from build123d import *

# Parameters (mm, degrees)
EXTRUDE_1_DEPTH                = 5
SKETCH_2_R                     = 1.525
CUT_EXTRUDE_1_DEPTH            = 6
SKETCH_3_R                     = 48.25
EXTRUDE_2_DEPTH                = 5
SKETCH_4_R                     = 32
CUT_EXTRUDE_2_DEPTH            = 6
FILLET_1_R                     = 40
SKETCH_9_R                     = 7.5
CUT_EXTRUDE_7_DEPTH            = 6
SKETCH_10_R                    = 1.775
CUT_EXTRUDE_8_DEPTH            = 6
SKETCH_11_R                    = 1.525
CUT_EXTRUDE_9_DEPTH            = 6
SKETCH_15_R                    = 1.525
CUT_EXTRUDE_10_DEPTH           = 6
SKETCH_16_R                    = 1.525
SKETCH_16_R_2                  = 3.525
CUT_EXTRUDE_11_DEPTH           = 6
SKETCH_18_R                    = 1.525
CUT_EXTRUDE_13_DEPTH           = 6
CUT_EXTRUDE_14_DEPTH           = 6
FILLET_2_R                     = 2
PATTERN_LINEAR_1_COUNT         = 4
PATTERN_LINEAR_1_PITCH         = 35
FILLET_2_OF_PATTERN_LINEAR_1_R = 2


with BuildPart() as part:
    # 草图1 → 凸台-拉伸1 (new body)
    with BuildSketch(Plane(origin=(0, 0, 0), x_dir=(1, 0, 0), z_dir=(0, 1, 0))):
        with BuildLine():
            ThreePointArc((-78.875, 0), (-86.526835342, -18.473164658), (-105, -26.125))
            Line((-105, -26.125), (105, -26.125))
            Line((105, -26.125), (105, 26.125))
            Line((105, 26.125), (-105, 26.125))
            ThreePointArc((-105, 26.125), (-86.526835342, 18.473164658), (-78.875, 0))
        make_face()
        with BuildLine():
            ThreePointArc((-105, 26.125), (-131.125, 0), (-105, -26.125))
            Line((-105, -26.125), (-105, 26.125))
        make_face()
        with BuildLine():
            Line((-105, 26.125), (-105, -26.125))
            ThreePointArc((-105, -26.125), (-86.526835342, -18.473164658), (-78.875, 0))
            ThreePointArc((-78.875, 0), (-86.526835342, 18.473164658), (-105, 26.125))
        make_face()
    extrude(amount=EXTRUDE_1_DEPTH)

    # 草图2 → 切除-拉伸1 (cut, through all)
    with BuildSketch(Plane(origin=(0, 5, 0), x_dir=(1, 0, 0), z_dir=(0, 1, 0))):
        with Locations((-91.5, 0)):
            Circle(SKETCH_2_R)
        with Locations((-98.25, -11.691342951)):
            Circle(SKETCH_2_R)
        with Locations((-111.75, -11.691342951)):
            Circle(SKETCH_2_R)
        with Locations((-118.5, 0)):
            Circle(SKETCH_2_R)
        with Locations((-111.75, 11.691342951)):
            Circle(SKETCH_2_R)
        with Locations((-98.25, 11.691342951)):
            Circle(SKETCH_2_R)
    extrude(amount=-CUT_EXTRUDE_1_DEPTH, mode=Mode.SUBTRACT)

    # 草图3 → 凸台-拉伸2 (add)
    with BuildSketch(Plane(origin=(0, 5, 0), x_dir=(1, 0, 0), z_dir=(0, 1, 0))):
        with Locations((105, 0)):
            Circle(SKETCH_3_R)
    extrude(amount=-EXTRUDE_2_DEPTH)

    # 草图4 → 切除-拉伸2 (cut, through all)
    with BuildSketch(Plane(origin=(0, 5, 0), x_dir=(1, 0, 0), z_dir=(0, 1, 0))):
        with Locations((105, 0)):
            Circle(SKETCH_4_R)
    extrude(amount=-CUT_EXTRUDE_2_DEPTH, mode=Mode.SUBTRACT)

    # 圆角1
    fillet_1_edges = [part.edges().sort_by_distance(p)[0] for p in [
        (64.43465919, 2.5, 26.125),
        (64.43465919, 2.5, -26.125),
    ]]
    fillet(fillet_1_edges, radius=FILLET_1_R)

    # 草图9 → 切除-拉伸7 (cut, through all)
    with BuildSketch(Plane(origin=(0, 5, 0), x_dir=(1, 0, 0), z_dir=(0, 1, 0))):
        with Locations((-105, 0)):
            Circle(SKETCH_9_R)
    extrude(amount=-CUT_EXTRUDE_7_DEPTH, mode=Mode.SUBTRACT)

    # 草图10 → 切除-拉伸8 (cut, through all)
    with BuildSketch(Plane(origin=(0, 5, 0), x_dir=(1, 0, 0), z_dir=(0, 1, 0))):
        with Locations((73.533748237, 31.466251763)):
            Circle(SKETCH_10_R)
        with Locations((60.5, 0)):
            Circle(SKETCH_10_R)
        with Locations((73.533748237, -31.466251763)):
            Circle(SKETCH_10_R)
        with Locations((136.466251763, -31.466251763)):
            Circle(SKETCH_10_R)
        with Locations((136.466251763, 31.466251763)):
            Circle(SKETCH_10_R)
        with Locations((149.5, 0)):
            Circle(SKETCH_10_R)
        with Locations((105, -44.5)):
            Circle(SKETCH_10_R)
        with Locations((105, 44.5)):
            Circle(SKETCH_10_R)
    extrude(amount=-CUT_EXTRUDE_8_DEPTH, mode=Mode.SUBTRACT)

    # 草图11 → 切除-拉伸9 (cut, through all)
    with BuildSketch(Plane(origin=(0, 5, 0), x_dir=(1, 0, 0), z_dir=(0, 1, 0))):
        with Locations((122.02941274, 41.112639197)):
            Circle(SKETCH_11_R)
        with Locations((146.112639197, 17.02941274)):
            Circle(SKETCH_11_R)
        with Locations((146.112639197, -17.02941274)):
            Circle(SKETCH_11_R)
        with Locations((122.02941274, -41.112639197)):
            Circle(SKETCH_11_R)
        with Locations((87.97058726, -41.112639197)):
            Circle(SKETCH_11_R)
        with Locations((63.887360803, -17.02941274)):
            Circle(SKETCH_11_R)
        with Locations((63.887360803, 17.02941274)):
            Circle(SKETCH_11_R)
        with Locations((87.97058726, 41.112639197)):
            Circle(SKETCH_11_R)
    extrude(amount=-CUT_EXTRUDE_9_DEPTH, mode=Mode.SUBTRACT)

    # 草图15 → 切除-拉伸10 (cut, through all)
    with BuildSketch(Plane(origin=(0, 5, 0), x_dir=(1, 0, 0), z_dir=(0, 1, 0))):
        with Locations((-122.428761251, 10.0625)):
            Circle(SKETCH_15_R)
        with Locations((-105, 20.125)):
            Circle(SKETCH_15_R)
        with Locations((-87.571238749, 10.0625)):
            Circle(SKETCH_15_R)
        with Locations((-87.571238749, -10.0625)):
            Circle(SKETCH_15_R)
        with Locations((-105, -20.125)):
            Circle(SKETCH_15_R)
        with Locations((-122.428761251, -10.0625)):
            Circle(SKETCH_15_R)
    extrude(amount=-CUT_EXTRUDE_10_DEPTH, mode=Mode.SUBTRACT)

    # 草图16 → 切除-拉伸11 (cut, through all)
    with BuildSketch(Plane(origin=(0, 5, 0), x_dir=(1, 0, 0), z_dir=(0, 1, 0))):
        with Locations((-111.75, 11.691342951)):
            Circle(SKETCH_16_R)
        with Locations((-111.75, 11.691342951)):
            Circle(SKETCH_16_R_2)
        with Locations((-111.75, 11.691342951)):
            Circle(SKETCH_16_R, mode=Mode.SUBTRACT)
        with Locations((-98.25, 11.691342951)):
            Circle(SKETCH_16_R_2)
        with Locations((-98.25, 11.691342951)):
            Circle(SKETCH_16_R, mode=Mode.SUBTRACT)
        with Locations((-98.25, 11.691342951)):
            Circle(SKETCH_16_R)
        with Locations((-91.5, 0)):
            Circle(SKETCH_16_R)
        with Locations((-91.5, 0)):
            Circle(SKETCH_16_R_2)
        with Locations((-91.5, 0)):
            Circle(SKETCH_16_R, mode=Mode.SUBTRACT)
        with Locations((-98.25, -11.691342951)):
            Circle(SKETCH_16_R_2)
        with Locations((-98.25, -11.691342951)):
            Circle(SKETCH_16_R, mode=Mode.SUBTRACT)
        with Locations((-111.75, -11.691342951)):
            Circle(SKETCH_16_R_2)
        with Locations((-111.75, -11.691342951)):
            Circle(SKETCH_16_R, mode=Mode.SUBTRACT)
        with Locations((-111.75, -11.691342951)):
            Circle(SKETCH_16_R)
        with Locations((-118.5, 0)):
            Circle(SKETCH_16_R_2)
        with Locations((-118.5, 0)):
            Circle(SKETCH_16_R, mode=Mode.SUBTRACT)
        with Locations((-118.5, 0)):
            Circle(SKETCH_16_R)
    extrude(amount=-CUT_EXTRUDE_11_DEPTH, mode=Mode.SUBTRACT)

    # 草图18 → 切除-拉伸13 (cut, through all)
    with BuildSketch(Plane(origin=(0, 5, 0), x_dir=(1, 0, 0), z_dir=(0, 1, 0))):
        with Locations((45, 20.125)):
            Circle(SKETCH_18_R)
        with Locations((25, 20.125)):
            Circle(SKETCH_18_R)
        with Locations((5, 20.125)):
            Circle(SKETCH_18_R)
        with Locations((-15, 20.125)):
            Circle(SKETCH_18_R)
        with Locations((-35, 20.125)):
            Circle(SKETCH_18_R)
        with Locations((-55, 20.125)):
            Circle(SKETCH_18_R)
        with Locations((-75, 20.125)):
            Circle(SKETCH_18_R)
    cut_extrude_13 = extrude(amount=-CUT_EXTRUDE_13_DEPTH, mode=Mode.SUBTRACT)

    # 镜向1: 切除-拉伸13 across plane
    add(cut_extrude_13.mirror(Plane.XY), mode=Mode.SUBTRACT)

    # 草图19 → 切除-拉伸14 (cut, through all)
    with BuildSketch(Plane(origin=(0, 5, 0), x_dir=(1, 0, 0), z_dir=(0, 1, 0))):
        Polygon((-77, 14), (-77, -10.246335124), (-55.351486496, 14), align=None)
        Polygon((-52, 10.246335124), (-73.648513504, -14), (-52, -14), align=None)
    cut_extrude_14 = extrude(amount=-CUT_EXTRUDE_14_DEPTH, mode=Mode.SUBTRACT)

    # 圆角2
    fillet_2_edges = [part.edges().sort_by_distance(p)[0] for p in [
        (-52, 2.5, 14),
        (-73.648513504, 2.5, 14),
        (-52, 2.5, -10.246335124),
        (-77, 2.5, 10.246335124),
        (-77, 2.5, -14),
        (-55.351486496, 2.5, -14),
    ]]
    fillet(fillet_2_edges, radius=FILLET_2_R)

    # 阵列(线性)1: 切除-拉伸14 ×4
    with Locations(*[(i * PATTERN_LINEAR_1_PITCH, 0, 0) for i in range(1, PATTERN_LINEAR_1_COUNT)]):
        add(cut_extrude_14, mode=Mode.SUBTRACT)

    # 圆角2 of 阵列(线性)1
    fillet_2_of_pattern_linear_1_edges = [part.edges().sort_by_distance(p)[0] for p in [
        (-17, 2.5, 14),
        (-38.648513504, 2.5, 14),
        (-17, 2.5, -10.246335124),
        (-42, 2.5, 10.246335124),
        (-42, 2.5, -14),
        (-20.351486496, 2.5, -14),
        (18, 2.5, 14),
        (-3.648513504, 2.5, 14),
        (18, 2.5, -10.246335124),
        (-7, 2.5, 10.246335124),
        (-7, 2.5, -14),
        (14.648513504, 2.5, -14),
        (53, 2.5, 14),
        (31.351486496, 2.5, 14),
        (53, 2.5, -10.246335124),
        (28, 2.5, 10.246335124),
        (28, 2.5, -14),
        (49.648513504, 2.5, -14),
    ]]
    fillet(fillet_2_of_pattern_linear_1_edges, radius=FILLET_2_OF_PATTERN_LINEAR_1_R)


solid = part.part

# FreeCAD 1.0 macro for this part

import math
import FreeCAD as App
import Part
import Sketcher
Q = App.Units.Quantity


def edges_at(feature, points):
    """Names of the edges that pass closest to the given points."""
    edges = feature.Shape.Edges
    near = lambda p: min(range(len(edges)), key=lambda i: edges[i].distToShape(Part.Vertex(*p))[0])
    return sorted({f"Edge{near(p) + 1}" for p in points})

doc = App.newDocument("Part")
body = doc.addObject("PartDesign::Body", "Body")

sketch1 = body.newObject("Sketcher::SketchObject", "Sketch")
sketch1.AttachmentSupport = (doc.getObject("XZ_Plane"), [""])
sketch1.MapMode = "FlatFace"
sketch1.addGeometry([
    Part.LineSegment(App.Vector(105, 26, 0), App.Vector(105, -26, 0)),
    Part.LineSegment(App.Vector(105, -26, 0), App.Vector(-105, -26, 0)),
    Part.ArcOfCircle(Part.Circle(App.Vector(-105, 0, 0), App.Vector(0, 0, 1), 26), math.radians(90), math.radians(270)),
    Part.LineSegment(App.Vector(-105, 26, 0), App.Vector(105, 26, 0)),
], False)
sketch1.addConstraint([
    Sketcher.Constraint("Coincident", 0, 2, 1, 1),
    Sketcher.Constraint("Tangent", 1, 2, 2, 2),
    Sketcher.Constraint("Tangent", 2, 1, 3, 1),
    Sketcher.Constraint("Coincident", 3, 2, 0, 1),
    Sketcher.Constraint("Vertical", 0),
    Sketcher.Constraint("Horizontal", 1),
    Sketcher.Constraint("Horizontal", 3),
    Sketcher.Constraint("Symmetric", 0, 2, 2, 1, -1, 1),
    Sketcher.Constraint("DistanceX", 1, 2, 1, 1, Q("210 mm")),
    Sketcher.Constraint("Radius", 2, Q("26.125 mm")),
])
pad1 = body.newObject("PartDesign::Pad", "Pad")
pad1.Profile = sketch1
pad1.Length = 5
pad1.Reversed = True

sketch2 = body.newObject("Sketcher::SketchObject", "Sketch001")
sketch2.AttachmentSupport = (doc.getObject("XZ_Plane"), [""])
sketch2.MapMode = "FlatFace"
sketch2.AttachmentOffset = App.Placement(App.Vector(0, 0, -5), App.Rotation())
sketch2.addGeometry([
    Part.Circle(App.Vector(-91.5, 0, 0), App.Vector(0, 0, 1), 1.5),
    Part.Circle(App.Vector(-98.2, 11.7, 0), App.Vector(0, 0, 1), 1.5),
    Part.Circle(App.Vector(-111.8, 11.7, 0), App.Vector(0, 0, 1), 1.5),
    Part.Circle(App.Vector(-118.5, 0, 0), App.Vector(0, 0, 1), 1.5),
    Part.Circle(App.Vector(-111.8, -11.7, 0), App.Vector(0, 0, 1), 1.5),
    Part.Circle(App.Vector(-98.2, -11.7, 0), App.Vector(0, 0, 1), 1.5),
], False)
sketch2.addConstraint([
    Sketcher.Constraint("Equal", 0, 1),
    Sketcher.Constraint("Equal", 1, 2),
    Sketcher.Constraint("Equal", 2, 3),
    Sketcher.Constraint("Equal", 3, 4),
    Sketcher.Constraint("Equal", 4, 5),
    Sketcher.Constraint("Symmetric", 2, 3, 4, 3, -1),
    Sketcher.Constraint("Symmetric", 1, 3, 5, 3, -1),
    Sketcher.Constraint("PointOnObject", 0, 3, -1),
    Sketcher.Constraint("PointOnObject", 3, 3, -1),
    Sketcher.Constraint("Horizontal", 1, 3, 2, 3),
    Sketcher.Constraint("Diameter", 0, Q("3.05 mm")),
    Sketcher.Constraint("DistanceX", 3, 3, 0, 3, Q("27 mm")),
    Sketcher.Constraint("DistanceX", 0, 3, -1, 1, Q("91.5 mm")),
    Sketcher.Constraint("DistanceX", 2, 3, 1, 3, Q("13.5 mm")),
    Sketcher.Constraint("DistanceX", 1, 3, -1, 1, Q("98.25 mm")),
    Sketcher.Constraint("DistanceY", -1, 1, 1, 3, Q("11.691343 mm")),
])
pocket1 = body.newObject("PartDesign::Pocket", "Pocket")
pocket1.Profile = sketch2
pocket1.Type = "ThroughAll"
pocket1.Reversed = True

sketch3 = body.newObject("Sketcher::SketchObject", "Sketch002")
sketch3.AttachmentSupport = (doc.getObject("XZ_Plane"), [""])
sketch3.MapMode = "FlatFace"
sketch3.AttachmentOffset = App.Placement(App.Vector(0, 0, -5), App.Rotation())
sketch3.addGeometry(Part.Circle(App.Vector(105, 0, 0), App.Vector(0, 0, 1), 48), False)
sketch3.addConstraint([
    Sketcher.Constraint("PointOnObject", 0, 3, -1),
    Sketcher.Constraint("Diameter", 0, Q("96.5 mm")),
    Sketcher.Constraint("DistanceX", -1, 1, 0, 3, Q("105 mm")),
])
pad2 = body.newObject("PartDesign::Pad", "Pad001")
pad2.Profile = sketch3
pad2.Length = 5

sketch4 = body.newObject("Sketcher::SketchObject", "Sketch003")
sketch4.AttachmentSupport = (doc.getObject("XZ_Plane"), [""])
sketch4.MapMode = "FlatFace"
sketch4.AttachmentOffset = App.Placement(App.Vector(0, 0, -5), App.Rotation())
sketch4.addGeometry(Part.Circle(App.Vector(105, 0, 0), App.Vector(0, 0, 1), 32), False)
sketch4.addConstraint([
    Sketcher.Constraint("PointOnObject", 0, 3, -1),
    Sketcher.Constraint("Diameter", 0, Q("64 mm")),
    Sketcher.Constraint("DistanceX", -1, 1, 0, 3, Q("105 mm")),
])
pocket2 = body.newObject("PartDesign::Pocket", "Pocket001")
pocket2.Profile = sketch4
pocket2.Type = "ThroughAll"
pocket2.Reversed = True
doc.recompute()

fillet = body.newObject("PartDesign::Fillet", "Fillet")
fillet.Base = (pocket2, edges_at(pocket2, [(64.435, 2.5, 26.125), (64.435, 2.5, -26.125)]))
fillet.Radius = 40

sketch5 = body.newObject("Sketcher::SketchObject", "Sketch004")
sketch5.AttachmentSupport = (doc.getObject("XZ_Plane"), [""])
sketch5.MapMode = "FlatFace"
sketch5.AttachmentOffset = App.Placement(App.Vector(0, 0, -5), App.Rotation())
sketch5.addGeometry(Part.Circle(App.Vector(-105, 0, 0), App.Vector(0, 0, 1), 8), False)
sketch5.addConstraint([
    Sketcher.Constraint("PointOnObject", 0, 3, -1),
    Sketcher.Constraint("Diameter", 0, Q("15 mm")),
    Sketcher.Constraint("DistanceX", 0, 3, -1, 1, Q("105 mm")),
])
pocket3 = body.newObject("PartDesign::Pocket", "Pocket002")
pocket3.Profile = sketch5
pocket3.Type = "ThroughAll"
pocket3.Reversed = True

sketch6 = body.newObject("Sketcher::SketchObject", "Sketch005")
sketch6.AttachmentSupport = (doc.getObject("XZ_Plane"), [""])
sketch6.MapMode = "FlatFace"
sketch6.AttachmentOffset = App.Placement(App.Vector(0, 0, -5), App.Rotation())
sketch6.addGeometry([
    Part.Circle(App.Vector(73.5, -31.5, 0), App.Vector(0, 0, 1), 1.8),
    Part.Circle(App.Vector(60.5, 0, 0), App.Vector(0, 0, 1), 1.8),
    Part.Circle(App.Vector(73.5, 31.5, 0), App.Vector(0, 0, 1), 1.8),
    Part.Circle(App.Vector(136.5, 31.5, 0), App.Vector(0, 0, 1), 1.8),
    Part.Circle(App.Vector(136.5, -31.5, 0), App.Vector(0, 0, 1), 1.8),
    Part.Circle(App.Vector(149.5, 0, 0), App.Vector(0, 0, 1), 1.8),
    Part.Circle(App.Vector(105, 44.5, 0), App.Vector(0, 0, 1), 1.8),
    Part.Circle(App.Vector(105, -44.5, 0), App.Vector(0, 0, 1), 1.8),
], False)
sketch6.addConstraint([
    Sketcher.Constraint("Equal", 0, 1),
    Sketcher.Constraint("Equal", 1, 2),
    Sketcher.Constraint("Equal", 2, 3),
    Sketcher.Constraint("Equal", 3, 4),
    Sketcher.Constraint("Equal", 4, 5),
    Sketcher.Constraint("Equal", 5, 6),
    Sketcher.Constraint("Equal", 6, 7),
    Sketcher.Constraint("Symmetric", 0, 3, 2, 3, -1),
    Sketcher.Constraint("Symmetric", 3, 3, 4, 3, -1),
    Sketcher.Constraint("Symmetric", 6, 3, 7, 3, -1),
    Sketcher.Constraint("PointOnObject", 1, 3, -1),
    Sketcher.Constraint("PointOnObject", 5, 3, -1),
    Sketcher.Constraint("Horizontal", 2, 3, 3, 3),
    Sketcher.Constraint("Diameter", 0, Q("3.55 mm")),
    Sketcher.Constraint("DistanceX", -1, 1, 6, 3, Q("105 mm")),
    Sketcher.Constraint("DistanceX", 1, 3, 5, 3, Q("89 mm")),
    Sketcher.Constraint("DistanceX", -1, 1, 1, 3, Q("60.5 mm")),
    Sketcher.Constraint("DistanceY", -1, 1, 6, 3, Q("44.5 mm")),
    Sketcher.Constraint("DistanceX", -1, 1, 0, 3, Q("73.533748 mm")),
    Sketcher.Constraint("DistanceY", 0, 3, -1, 1, Q("31.466252 mm")),
    Sketcher.Constraint("DistanceX", -1, 1, 3, 3, Q("136.466252 mm")),
])
pocket4 = body.newObject("PartDesign::Pocket", "Pocket003")
pocket4.Profile = sketch6
pocket4.Type = "ThroughAll"
pocket4.Reversed = True

sketch7 = body.newObject("Sketcher::SketchObject", "Sketch006")
sketch7.AttachmentSupport = (doc.getObject("XZ_Plane"), [""])
sketch7.MapMode = "FlatFace"
sketch7.AttachmentOffset = App.Placement(App.Vector(0, 0, -5), App.Rotation())
sketch7.addGeometry([
    Part.Circle(App.Vector(122, -41.1, 0), App.Vector(0, 0, 1), 1.5),
    Part.Circle(App.Vector(146.1, -17, 0), App.Vector(0, 0, 1), 1.5),
    Part.Circle(App.Vector(146.1, 17, 0), App.Vector(0, 0, 1), 1.5),
    Part.Circle(App.Vector(122, 41.1, 0), App.Vector(0, 0, 1), 1.5),
    Part.Circle(App.Vector(88, 41.1, 0), App.Vector(0, 0, 1), 1.5),
    Part.Circle(App.Vector(63.9, 17, 0), App.Vector(0, 0, 1), 1.5),
    Part.Circle(App.Vector(63.9, -17, 0), App.Vector(0, 0, 1), 1.5),
    Part.Circle(App.Vector(88, -41.1, 0), App.Vector(0, 0, 1), 1.5),
], False)
sketch7.addConstraint([
    Sketcher.Constraint("Equal", 0, 1),
    Sketcher.Constraint("Equal", 1, 2),
    Sketcher.Constraint("Equal", 2, 3),
    Sketcher.Constraint("Equal", 3, 4),
    Sketcher.Constraint("Equal", 4, 5),
    Sketcher.Constraint("Equal", 5, 6),
    Sketcher.Constraint("Equal", 6, 7),
    Sketcher.Constraint("Symmetric", 1, 3, 2, 3, -1),
    Sketcher.Constraint("Symmetric", 0, 3, 3, 3, -1),
    Sketcher.Constraint("Symmetric", 5, 3, 6, 3, -1),
    Sketcher.Constraint("Symmetric", 4, 3, 7, 3, -1),
    Sketcher.Constraint("Horizontal", 3, 3, 4, 3),
    Sketcher.Constraint("Horizontal", 2, 3, 5, 3),
    Sketcher.Constraint("Diameter", 0, Q("3.05 mm")),
    Sketcher.Constraint("DistanceY", 0, 3, -1, 1, Q("41.112639 mm")),
    Sketcher.Constraint("DistanceX", -1, 1, 1, 3, Q("146.112639 mm")),
    Sketcher.Constraint("DistanceX", -1, 1, 5, 3, Q("63.887361 mm")),
    Sketcher.Constraint("DistanceY", 0, 3, 2, 3, Q("58.142052 mm")),
    Sketcher.Constraint("DistanceX", 4, 3, 2, 3, Q("58.142052 mm")),
    Sketcher.Constraint("DistanceX", 5, 3, 3, 3, Q("58.142052 mm")),
])
pocket5 = body.newObject("PartDesign::Pocket", "Pocket004")
pocket5.Profile = sketch7
pocket5.Type = "ThroughAll"
pocket5.Reversed = True

sketch8 = body.newObject("Sketcher::SketchObject", "Sketch007")
sketch8.AttachmentSupport = (doc.getObject("XZ_Plane"), [""])
sketch8.MapMode = "FlatFace"
sketch8.AttachmentOffset = App.Placement(App.Vector(0, 0, -5), App.Rotation())
sketch8.addGeometry([
    Part.Circle(App.Vector(-122.4, -10.1, 0), App.Vector(0, 0, 1), 1.5),
    Part.Circle(App.Vector(-105, -20.1, 0), App.Vector(0, 0, 1), 1.5),
    Part.Circle(App.Vector(-87.6, -10.1, 0), App.Vector(0, 0, 1), 1.5),
    Part.Circle(App.Vector(-87.6, 10.1, 0), App.Vector(0, 0, 1), 1.5),
    Part.Circle(App.Vector(-105, 20.1, 0), App.Vector(0, 0, 1), 1.5),
    Part.Circle(App.Vector(-122.4, 10.1, 0), App.Vector(0, 0, 1), 1.5),
], False)
sketch8.addConstraint([
    Sketcher.Constraint("Equal", 0, 1),
    Sketcher.Constraint("Equal", 1, 2),
    Sketcher.Constraint("Equal", 2, 3),
    Sketcher.Constraint("Equal", 3, 4),
    Sketcher.Constraint("Equal", 4, 5),
    Sketcher.Constraint("Symmetric", 2, 3, 3, 3, -1),
    Sketcher.Constraint("Symmetric", 1, 3, 4, 3, -1),
    Sketcher.Constraint("Symmetric", 0, 3, 5, 3, -1),
    Sketcher.Constraint("Horizontal", 0, 3, 2, 3),
    Sketcher.Constraint("Diameter", 0, Q("3.05 mm")),
    Sketcher.Constraint("DistanceX", 1, 3, -1, 1, Q("105 mm")),
    Sketcher.Constraint("DistanceY", 1, 3, 4, 3, Q("40.25 mm")),
    Sketcher.Constraint("DistanceY", 2, 3, 3, 3, Q("20.125 mm")),
    Sketcher.Constraint("DistanceX", 0, 3, -1, 1, Q("122.428761 mm")),
    Sketcher.Constraint("DistanceX", 2, 3, -1, 1, Q("87.571239 mm")),
])
pocket6 = body.newObject("PartDesign::Pocket", "Pocket005")
pocket6.Profile = sketch8
pocket6.Type = "ThroughAll"
pocket6.Reversed = True

sketch9 = body.newObject("Sketcher::SketchObject", "Sketch008")
sketch9.AttachmentSupport = (doc.getObject("XZ_Plane"), [""])
sketch9.MapMode = "FlatFace"
sketch9.AttachmentOffset = App.Placement(App.Vector(0, 0, -5), App.Rotation())
sketch9.addGeometry([
    Part.Circle(App.Vector(-111.8, -11.7, 0), App.Vector(0, 0, 1), 3.5),
    Part.Circle(App.Vector(-111.8, -11.7, 0), App.Vector(0, 0, 1), 1.5),
    Part.Circle(App.Vector(-98.2, -11.7, 0), App.Vector(0, 0, 1), 3.5),
    Part.Circle(App.Vector(-91.5, 0, 0), App.Vector(0, 0, 1), 3.5),
    Part.Circle(App.Vector(-91.5, 0, 0), App.Vector(0, 0, 1), 1.5),
    Part.Circle(App.Vector(-98.2, 11.7, 0), App.Vector(0, 0, 1), 3.5),
    Part.Circle(App.Vector(-98.2, 11.7, 0), App.Vector(0, 0, 1), 1.5),
    Part.Circle(App.Vector(-111.8, 11.7, 0), App.Vector(0, 0, 1), 3.5),
    Part.Circle(App.Vector(-118.5, 0, 0), App.Vector(0, 0, 1), 3.5),
], False)
sketch9.addConstraint([
    Sketcher.Constraint("Coincident", 1, 3, 0, 3),
    Sketcher.Constraint("Coincident", 4, 3, 3, 3),
    Sketcher.Constraint("Coincident", 6, 3, 5, 3),
    Sketcher.Constraint("Equal", 0, 2),
    Sketcher.Constraint("Equal", 2, 3),
    Sketcher.Constraint("Equal", 1, 4),
    Sketcher.Constraint("Equal", 3, 5),
    Sketcher.Constraint("Equal", 4, 6),
    Sketcher.Constraint("Equal", 5, 7),
    Sketcher.Constraint("Equal", 7, 8),
    Sketcher.Constraint("Symmetric", 2, 3, 5, 3, -1),
    Sketcher.Constraint("Symmetric", 0, 3, 7, 3, -1),
    Sketcher.Constraint("PointOnObject", 3, 3, -1),
    Sketcher.Constraint("PointOnObject", 8, 3, -1),
    Sketcher.Constraint("Horizontal", 1, 3, 2, 3),
    Sketcher.Constraint("Diameter", 0, Q("7.05 mm")),
    Sketcher.Constraint("Diameter", 1, Q("3.05 mm")),
    Sketcher.Constraint("DistanceX", 3, 3, -1, 1, Q("91.5 mm")),
    Sketcher.Constraint("DistanceX", 8, 3, -1, 1, Q("118.5 mm")),
    Sketcher.Constraint("DistanceX", 0, 3, 2, 3, Q("13.5 mm")),
    Sketcher.Constraint("DistanceX", 0, 3, -1, 1, Q("111.75 mm")),
    Sketcher.Constraint("DistanceY", 0, 3, -1, 1, Q("11.691343 mm")),
])
pocket7 = body.newObject("PartDesign::Pocket", "Pocket006")
pocket7.Profile = sketch9
pocket7.Type = "ThroughAll"
pocket7.Reversed = True

sketch10 = body.newObject("Sketcher::SketchObject", "Sketch009")
sketch10.AttachmentSupport = (doc.getObject("XZ_Plane"), [""])
sketch10.MapMode = "FlatFace"
sketch10.AttachmentOffset = App.Placement(App.Vector(0, 0, -5), App.Rotation())
sketch10.addGeometry([
    Part.Circle(App.Vector(45, -20.1, 0), App.Vector(0, 0, 1), 1.5),
    Part.Circle(App.Vector(25, -20.1, 0), App.Vector(0, 0, 1), 1.5),
    Part.Circle(App.Vector(5, -20.1, 0), App.Vector(0, 0, 1), 1.5),
    Part.Circle(App.Vector(-15, -20.1, 0), App.Vector(0, 0, 1), 1.5),
    Part.Circle(App.Vector(-35, -20.1, 0), App.Vector(0, 0, 1), 1.5),
    Part.Circle(App.Vector(-55, -20.1, 0), App.Vector(0, 0, 1), 1.5),
    Part.Circle(App.Vector(-75, -20.1, 0), App.Vector(0, 0, 1), 1.5),
], False)
sketch10.addConstraint([
    Sketcher.Constraint("Equal", 0, 1),
    Sketcher.Constraint("Equal", 1, 2),
    Sketcher.Constraint("Equal", 2, 3),
    Sketcher.Constraint("Equal", 3, 4),
    Sketcher.Constraint("Equal", 4, 5),
    Sketcher.Constraint("Equal", 5, 6),
    Sketcher.Constraint("Horizontal", 0, 3, 1, 3),
    Sketcher.Constraint("Horizontal", 1, 3, 2, 3),
    Sketcher.Constraint("Horizontal", 2, 3, 3, 3),
    Sketcher.Constraint("Horizontal", 3, 3, 4, 3),
    Sketcher.Constraint("Horizontal", 4, 3, 5, 3),
    Sketcher.Constraint("Horizontal", 5, 3, 6, 3),
    Sketcher.Constraint("Diameter", 0, Q("3.05 mm")),
    Sketcher.Constraint("DistanceX", -1, 1, 0, 3, Q("45 mm")),
    Sketcher.Constraint("DistanceX", -1, 1, 1, 3, Q("25 mm")),
    Sketcher.Constraint("DistanceX", -1, 1, 2, 3, Q("5 mm")),
    Sketcher.Constraint("DistanceX", 3, 3, -1, 1, Q("15 mm")),
    Sketcher.Constraint("DistanceX", 4, 3, -1, 1, Q("35 mm")),
    Sketcher.Constraint("DistanceX", 5, 3, -1, 1, Q("55 mm")),
    Sketcher.Constraint("DistanceX", 6, 3, -1, 1, Q("75 mm")),
    Sketcher.Constraint("DistanceY", 0, 3, -1, 1, Q("20.125 mm")),
])
pocket8 = body.newObject("PartDesign::Pocket", "Pocket007")
pocket8.Profile = sketch10
pocket8.Type = "ThroughAll"
pocket8.Reversed = True
doc.recompute()

mirrored = body.newObject("PartDesign::Mirrored", "Mirrored")
mirrored.Originals = [pocket8]
mirrored.MirrorPlane = (doc.getObject("XY_Plane"), [""])
body.Tip = mirrored

sketch11 = body.newObject("Sketcher::SketchObject", "Sketch010")
sketch11.AttachmentSupport = (doc.getObject("XZ_Plane"), [""])
sketch11.MapMode = "FlatFace"
sketch11.AttachmentOffset = App.Placement(App.Vector(0, 0, -5), App.Rotation())
sketch11.addGeometry([
    Part.LineSegment(App.Vector(-77, -14, 0), App.Vector(-77, 10, 0)),
    Part.LineSegment(App.Vector(-77, 10, 0), App.Vector(-55, -14, 0)),
    Part.LineSegment(App.Vector(-55, -14, 0), App.Vector(-77, -14, 0)),
    Part.LineSegment(App.Vector(-52, -10, 0), App.Vector(-74, 14, 0)),
    Part.LineSegment(App.Vector(-74, 14, 0), App.Vector(-52, 14, 0)),
    Part.LineSegment(App.Vector(-52, 14, 0), App.Vector(-52, -10, 0)),
], False)
sketch11.addConstraint([
    Sketcher.Constraint("Coincident", 0, 2, 1, 1),
    Sketcher.Constraint("Coincident", 1, 2, 2, 1),
    Sketcher.Constraint("Coincident", 2, 2, 0, 1),
    Sketcher.Constraint("Coincident", 3, 2, 4, 1),
    Sketcher.Constraint("Coincident", 4, 2, 5, 1),
    Sketcher.Constraint("Coincident", 5, 2, 3, 1),
    Sketcher.Constraint("Vertical", 0),
    Sketcher.Constraint("Horizontal", 2),
    Sketcher.Constraint("Horizontal", 4),
    Sketcher.Constraint("Vertical", 5),
    Sketcher.Constraint("Parallel", 1, 3),
    Sketcher.Constraint("Equal", 2, 4),
    Sketcher.Constraint("DistanceX", 0, 2, -1, 1, Q("77 mm")),
    Sketcher.Constraint("DistanceY", 1, 2, -1, 1, Q("14 mm")),
    Sketcher.Constraint("DistanceY", -1, 1, 3, 2, Q("14 mm")),
    Sketcher.Constraint("DistanceX", 4, 2, -1, 1, Q("52 mm")),
    Sketcher.Constraint("DistanceX", 2, 2, 2, 1, Q("21.648514 mm")),
    Sketcher.Constraint("DistanceY", 0, 1, 0, 2, Q("24.246335 mm")),
])
pocket9 = body.newObject("PartDesign::Pocket", "Pocket008")
pocket9.Profile = sketch11
pocket9.Type = "ThroughAll"
pocket9.Reversed = True
doc.recompute()

fillet2 = body.newObject("PartDesign::Fillet", "Fillet001")
fillet2.Base = (pocket9, edges_at(pocket9, [
    (-52, 2.5, 14),
    (-73.649, 2.5, 14),
    (-52, 2.5, -10.246),
    (-77, 2.5, 10.246),
    (-77, 2.5, -14),
    (-55.351, 2.5, -14),
]))
fillet2.Radius = 2
doc.recompute()

linearpattern = body.newObject("PartDesign::LinearPattern", "LinearPattern")
linearpattern.Originals = [pocket9]
linearpattern.Direction = (doc.getObject("X_Axis"), [""])
linearpattern.Mode = "offset"
linearpattern.Offset = 35
linearpattern.Occurrences = 4
body.Tip = linearpattern
doc.recompute()

fillet3 = body.newObject("PartDesign::Fillet", "Fillet002")
fillet3.Base = (linearpattern, edges_at(linearpattern, [
    (-17, 2.5, 14),
    (-38.649, 2.5, 14),
    (-17, 2.5, -10.246),
    (-42, 2.5, 10.246),
    (-42, 2.5, -14),
    (-20.351, 2.5, -14),
    (18, 2.5, 14),
    (-3.649, 2.5, 14),
    (18, 2.5, -10.246),
    (-7, 2.5, 10.246),
    (-7, 2.5, -14),
    (14.649, 2.5, -14),
    (53, 2.5, 14),
    (31.351, 2.5, 14),
    (53, 2.5, -10.246),
    (28, 2.5, 10.246),
    (28, 2.5, -14),
    (49.649, 2.5, -14),
]))
fillet3.Radius = 2

doc.recompute()
